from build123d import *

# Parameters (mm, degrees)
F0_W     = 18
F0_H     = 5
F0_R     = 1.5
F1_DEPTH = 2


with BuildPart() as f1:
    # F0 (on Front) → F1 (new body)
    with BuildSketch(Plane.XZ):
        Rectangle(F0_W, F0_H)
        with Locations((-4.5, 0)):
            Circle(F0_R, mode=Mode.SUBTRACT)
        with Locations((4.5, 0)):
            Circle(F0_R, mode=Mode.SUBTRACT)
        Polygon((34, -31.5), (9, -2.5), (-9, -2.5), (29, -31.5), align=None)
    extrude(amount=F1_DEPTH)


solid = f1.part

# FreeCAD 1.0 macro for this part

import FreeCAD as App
import Part
import Sketcher
from FreeCAD import Vector
Q = App.Units.Quantity


def add_polygon(sketch, points):
    """Adds a closed chain of lines whose ends are joined by coincident constraints."""
    first, n = sketch.GeometryCount, len(points)
    for a, b in zip(points, points[1:] + points[:1]):
        sketch.addGeometry(Part.LineSegment(App.Vector(*a, 0), App.Vector(*b, 0)), False)
    for i in range(n):
        sketch.addConstraint(Sketcher.Constraint("Coincident", first + i, 2, first + (i + 1) % n, 1))

doc = App.newDocument("Part")
body = doc.addObject("PartDesign::Body", "Body")

sketch1 = body.newObject("Sketcher::SketchObject", "Sketch")
sketch1.AttachmentSupport = (doc.getObject("XZ_Plane"), [""])
sketch1.MapMode = "FlatFace"
add_polygon(sketch1, [(-9, 2.5), (-9, -2.5), (29, -31.5), (34, -31.5), (9, -2.5), (9, 2.5)])
sketch1.addGeometry(Part.Circle(Vector(-4.5, 0, 0), Vector(0, 0, 1), 1.5), False)
sketch1.addGeometry(Part.Circle(Vector(4.5, 0, 0), Vector(0, 0, 1), 1.5), False)
sketch1.addConstraint([
    Sketcher.Constraint("Vertical", 0),
    Sketcher.Constraint("Horizontal", 2),
    Sketcher.Constraint("Vertical", 4),
    Sketcher.Constraint("Horizontal", 5),
    Sketcher.Constraint("Equal", 6, 7),
    Sketcher.Constraint("Symmetric", 6, 3, 7, 3, -1, 1),
    Sketcher.Constraint("Symmetric", 0, 2, 4, 2, -1, 1),
    Sketcher.Constraint("PointOnObject", 6, 3, -1),
    Sketcher.Constraint("Horizontal", 0, 2, 3, 2),
    Sketcher.Constraint("Equal", 2, 0),
    Sketcher.Constraint("Diameter", 6, Q("3 mm")),
    Sketcher.Constraint("DistanceX", 2, 1, 2, 2, Q("5 mm")),
    Sketcher.Constraint("DistanceX", 5, 2, 5, 1, Q("18 mm")),
    Sketcher.Constraint("DistanceX", -1, 1, 1, 2, Q("29 mm")),
    Sketcher.Constraint("DistanceX", 6, 3, 7, 3, Q("9 mm")),
    Sketcher.Constraint("DistanceY", 1, 2, 0, 2, Q("29 mm")),
])
pad1 = body.newObject("PartDesign::Pad", "Pad")
pad1.Profile = sketch1
pad1.Length = 2

doc.recompute()
